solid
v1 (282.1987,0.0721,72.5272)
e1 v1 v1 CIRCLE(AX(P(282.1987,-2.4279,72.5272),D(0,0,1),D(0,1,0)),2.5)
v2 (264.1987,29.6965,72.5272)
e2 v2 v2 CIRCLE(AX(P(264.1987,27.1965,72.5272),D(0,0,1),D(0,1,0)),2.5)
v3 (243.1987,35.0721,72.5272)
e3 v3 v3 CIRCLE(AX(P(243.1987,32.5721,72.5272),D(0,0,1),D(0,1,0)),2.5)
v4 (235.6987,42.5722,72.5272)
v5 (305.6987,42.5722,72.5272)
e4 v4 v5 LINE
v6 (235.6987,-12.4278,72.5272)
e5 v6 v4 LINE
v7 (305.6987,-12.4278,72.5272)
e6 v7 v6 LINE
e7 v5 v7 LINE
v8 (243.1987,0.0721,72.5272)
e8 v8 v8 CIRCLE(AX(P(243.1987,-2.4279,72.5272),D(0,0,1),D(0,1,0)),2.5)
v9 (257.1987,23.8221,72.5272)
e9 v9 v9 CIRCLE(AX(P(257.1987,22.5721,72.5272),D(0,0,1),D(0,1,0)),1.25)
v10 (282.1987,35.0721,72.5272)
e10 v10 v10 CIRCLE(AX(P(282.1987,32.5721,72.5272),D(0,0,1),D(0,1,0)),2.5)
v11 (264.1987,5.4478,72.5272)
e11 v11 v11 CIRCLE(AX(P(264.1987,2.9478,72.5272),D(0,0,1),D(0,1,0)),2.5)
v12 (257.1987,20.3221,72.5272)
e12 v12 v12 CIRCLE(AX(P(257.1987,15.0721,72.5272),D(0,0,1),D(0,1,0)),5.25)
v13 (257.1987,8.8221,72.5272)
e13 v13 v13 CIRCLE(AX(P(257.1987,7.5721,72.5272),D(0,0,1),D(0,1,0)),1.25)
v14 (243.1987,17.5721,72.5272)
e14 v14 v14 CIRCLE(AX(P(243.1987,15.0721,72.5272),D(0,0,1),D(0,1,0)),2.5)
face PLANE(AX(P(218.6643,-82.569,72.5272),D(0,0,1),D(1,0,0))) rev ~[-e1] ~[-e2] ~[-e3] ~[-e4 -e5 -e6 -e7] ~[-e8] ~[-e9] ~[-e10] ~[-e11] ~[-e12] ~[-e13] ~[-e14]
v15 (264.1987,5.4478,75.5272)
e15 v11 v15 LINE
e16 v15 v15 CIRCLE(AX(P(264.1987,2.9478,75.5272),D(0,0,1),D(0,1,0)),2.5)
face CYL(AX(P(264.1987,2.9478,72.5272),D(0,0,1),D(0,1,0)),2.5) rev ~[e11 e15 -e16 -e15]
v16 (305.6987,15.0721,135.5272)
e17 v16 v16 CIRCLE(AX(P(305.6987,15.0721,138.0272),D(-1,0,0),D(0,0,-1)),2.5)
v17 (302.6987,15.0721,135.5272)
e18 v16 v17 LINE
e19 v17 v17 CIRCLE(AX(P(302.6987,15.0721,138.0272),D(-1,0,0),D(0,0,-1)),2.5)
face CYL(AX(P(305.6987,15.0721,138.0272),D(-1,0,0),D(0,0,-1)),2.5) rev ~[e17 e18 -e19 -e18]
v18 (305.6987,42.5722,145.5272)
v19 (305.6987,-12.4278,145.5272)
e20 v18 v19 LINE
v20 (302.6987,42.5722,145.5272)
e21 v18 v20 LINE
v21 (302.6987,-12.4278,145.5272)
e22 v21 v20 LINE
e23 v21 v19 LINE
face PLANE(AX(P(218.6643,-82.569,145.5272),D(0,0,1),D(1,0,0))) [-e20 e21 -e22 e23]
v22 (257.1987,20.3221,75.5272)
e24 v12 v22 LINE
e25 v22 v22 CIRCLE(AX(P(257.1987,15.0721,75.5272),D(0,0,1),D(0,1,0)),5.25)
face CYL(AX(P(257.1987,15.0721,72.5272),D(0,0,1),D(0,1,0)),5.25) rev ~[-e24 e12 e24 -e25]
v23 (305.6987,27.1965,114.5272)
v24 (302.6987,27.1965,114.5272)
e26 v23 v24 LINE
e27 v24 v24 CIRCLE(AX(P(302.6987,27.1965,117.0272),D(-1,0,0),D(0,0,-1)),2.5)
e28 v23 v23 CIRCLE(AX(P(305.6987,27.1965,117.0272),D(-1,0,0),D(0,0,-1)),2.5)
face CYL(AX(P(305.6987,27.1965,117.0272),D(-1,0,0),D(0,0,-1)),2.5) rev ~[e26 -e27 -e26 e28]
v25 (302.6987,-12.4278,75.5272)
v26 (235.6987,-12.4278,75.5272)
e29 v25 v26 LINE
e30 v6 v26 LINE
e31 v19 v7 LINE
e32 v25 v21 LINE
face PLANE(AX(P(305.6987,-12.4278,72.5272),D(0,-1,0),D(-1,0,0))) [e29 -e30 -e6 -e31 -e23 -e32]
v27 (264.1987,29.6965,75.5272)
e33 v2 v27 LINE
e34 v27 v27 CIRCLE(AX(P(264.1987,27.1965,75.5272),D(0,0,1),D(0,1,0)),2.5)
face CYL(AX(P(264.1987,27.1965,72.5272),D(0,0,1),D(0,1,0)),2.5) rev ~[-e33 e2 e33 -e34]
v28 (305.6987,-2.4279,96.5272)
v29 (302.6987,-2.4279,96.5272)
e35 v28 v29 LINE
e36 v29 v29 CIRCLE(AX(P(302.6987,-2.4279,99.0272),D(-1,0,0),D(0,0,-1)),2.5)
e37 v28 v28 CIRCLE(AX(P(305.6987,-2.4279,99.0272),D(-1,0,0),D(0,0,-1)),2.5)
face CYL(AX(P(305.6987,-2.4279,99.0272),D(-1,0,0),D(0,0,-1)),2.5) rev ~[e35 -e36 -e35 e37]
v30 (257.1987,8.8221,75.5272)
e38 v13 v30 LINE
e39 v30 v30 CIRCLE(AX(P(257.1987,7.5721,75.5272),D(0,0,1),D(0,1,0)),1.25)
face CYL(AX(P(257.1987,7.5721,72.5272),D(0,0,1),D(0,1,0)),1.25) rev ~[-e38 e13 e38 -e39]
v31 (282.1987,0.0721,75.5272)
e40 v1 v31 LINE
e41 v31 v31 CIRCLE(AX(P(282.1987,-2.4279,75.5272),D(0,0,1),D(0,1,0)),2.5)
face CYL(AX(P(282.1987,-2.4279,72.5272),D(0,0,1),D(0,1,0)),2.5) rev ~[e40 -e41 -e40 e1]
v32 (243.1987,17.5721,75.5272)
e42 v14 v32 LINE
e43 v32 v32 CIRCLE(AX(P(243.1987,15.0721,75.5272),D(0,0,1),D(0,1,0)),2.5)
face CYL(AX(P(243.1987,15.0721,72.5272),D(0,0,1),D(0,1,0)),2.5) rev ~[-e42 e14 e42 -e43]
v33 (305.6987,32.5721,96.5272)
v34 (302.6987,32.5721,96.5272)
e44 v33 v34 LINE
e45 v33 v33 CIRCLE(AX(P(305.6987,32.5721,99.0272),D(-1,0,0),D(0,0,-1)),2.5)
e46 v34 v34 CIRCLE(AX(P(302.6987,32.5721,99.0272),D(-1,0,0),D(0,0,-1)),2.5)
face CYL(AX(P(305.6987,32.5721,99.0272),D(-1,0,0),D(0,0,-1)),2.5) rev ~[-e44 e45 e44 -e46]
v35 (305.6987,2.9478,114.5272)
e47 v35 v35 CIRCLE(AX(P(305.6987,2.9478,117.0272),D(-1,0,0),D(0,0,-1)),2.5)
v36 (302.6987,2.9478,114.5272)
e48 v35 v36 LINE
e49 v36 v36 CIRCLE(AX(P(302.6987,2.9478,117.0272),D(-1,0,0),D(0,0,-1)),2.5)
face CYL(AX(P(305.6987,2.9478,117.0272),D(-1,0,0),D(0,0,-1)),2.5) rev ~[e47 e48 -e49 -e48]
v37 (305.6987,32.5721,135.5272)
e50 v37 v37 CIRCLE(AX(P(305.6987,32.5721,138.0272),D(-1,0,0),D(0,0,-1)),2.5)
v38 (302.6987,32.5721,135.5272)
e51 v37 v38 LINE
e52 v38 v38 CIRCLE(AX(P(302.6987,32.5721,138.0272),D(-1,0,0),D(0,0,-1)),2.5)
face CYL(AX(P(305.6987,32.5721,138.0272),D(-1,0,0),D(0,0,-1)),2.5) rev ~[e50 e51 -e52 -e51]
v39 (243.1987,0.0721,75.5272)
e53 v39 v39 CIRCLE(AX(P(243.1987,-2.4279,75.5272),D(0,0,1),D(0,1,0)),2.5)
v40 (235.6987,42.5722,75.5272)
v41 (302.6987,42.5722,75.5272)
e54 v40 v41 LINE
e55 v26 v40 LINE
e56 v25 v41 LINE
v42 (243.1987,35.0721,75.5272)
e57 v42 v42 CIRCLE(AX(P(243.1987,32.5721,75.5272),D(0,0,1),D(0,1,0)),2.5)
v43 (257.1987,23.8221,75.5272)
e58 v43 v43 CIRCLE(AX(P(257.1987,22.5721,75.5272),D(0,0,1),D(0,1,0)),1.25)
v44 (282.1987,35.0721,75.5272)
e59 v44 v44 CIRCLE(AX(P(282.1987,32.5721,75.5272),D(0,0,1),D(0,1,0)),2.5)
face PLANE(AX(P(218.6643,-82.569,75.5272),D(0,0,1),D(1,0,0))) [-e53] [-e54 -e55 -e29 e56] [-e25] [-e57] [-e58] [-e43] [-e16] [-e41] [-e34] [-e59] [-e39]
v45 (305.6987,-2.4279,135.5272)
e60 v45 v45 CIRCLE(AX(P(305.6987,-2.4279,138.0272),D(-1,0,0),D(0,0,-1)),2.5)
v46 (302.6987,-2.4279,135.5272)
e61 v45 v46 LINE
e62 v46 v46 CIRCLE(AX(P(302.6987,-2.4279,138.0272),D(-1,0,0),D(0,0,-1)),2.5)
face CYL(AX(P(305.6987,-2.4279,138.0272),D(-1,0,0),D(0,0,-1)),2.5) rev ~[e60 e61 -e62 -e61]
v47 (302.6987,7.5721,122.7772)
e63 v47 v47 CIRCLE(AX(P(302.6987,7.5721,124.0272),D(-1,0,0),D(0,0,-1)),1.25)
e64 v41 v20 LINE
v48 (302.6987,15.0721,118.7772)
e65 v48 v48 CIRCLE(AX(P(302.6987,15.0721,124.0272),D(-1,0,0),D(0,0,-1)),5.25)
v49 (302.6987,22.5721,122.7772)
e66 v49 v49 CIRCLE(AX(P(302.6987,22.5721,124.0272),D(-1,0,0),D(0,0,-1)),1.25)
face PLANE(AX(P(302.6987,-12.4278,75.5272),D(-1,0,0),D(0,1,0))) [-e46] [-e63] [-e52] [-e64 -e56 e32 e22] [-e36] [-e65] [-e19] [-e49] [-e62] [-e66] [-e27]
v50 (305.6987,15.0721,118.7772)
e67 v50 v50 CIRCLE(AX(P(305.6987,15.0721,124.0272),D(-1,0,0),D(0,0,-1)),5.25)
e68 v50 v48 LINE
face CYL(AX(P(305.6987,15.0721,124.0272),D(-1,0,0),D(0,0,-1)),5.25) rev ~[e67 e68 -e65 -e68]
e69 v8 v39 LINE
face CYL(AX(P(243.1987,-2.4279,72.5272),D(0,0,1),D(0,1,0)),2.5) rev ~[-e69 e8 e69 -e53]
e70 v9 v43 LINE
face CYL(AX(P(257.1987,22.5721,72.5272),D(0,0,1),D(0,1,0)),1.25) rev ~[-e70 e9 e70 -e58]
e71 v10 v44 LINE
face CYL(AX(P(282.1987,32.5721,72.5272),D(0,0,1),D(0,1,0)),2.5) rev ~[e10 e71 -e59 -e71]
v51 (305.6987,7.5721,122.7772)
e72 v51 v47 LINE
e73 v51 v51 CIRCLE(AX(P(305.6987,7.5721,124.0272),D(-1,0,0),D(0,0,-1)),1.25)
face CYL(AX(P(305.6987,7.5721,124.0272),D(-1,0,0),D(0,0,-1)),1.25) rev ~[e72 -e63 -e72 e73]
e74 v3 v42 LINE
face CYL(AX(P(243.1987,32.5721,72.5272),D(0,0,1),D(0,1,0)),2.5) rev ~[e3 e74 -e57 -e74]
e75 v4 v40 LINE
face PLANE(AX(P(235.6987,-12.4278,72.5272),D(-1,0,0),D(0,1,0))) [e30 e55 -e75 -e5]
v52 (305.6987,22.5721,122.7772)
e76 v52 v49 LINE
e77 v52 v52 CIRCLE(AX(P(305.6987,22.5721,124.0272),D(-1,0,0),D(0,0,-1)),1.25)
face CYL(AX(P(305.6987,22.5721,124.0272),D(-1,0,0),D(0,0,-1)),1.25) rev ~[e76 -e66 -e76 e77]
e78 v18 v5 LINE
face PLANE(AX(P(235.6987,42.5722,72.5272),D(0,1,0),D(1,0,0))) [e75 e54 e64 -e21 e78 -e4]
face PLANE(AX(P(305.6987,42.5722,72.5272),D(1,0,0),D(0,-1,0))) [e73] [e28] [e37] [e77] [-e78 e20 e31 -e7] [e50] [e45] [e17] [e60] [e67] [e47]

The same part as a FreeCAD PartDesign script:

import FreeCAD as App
import Part
import Sketcher
from FreeCAD import Vector


def add_polygon(sketch, points):
    """Adds a closed chain of lines whose ends are joined by coincident constraints."""
    first, n = sketch.GeometryCount, len(points)
    for a, b in zip(points, points[1:] + points[:1]):
        sketch.addGeometry(Part.LineSegment(App.Vector(*a, 0), App.Vector(*b, 0)), False)
    for i in range(n):
        sketch.addConstraint(Sketcher.Constraint("Coincident", first + i, 2, first + (i + 1) % n, 1))

doc = App.newDocument("Part")
body = doc.addObject("PartDesign::Body", "Body")

sketch1 = doc.addObject("Sketcher::SketchObject", "Sketch")
body.addObject(sketch1)
sketch1.AttachmentSupport = (doc.XY_Plane, [""])
sketch1.MapMode = "FlatFace"
sketch1.AttachmentOffset = App.Placement(Vector(0, 0, 72.5272), App.Rotation())
add_polygon(sketch1, [(306, 43), (236, 43), (236, -12), (306, -12)])
sketch1.addConstraint([
    Sketcher.Constraint("Horizontal", 0),
    Sketcher.Constraint("Vertical", 1),
    Sketcher.Constraint("Horizontal", 2),
    Sketcher.Constraint("Vertical", 3),
    Sketcher.Constraint("DistanceX", 0, 2, 0, 1, 70.0),
    Sketcher.Constraint("DistanceY", 1, 2, 1, 1, 55.0),
    Sketcher.Constraint("DistanceX", -1, 1, 0, 2, 235.6987),
    Sketcher.Constraint("DistanceY", -1, 1, 0, 2, 42.5722),
])
pad1 = doc.addObject("PartDesign::Pad", "Pad")
body.addObject(pad1)
pad1.Profile = sketch1
pad1.Length = 3

sketch2 = doc.addObject("Sketcher::SketchObject", "Sketch001")
body.addObject(sketch2)
sketch2.AttachmentSupport = (doc.XY_Plane, [""])
sketch2.MapMode = "FlatFace"
sketch2.AttachmentOffset = App.Placement(Vector(0, 0, 75.5272), App.Rotation())
add_polygon(sketch2, [(302.7, 42.6), (302.7, -12.4), (305.7, -12.4), (305.7, 42.6)])
sketch2.addConstraint([
    Sketcher.Constraint("Vertical", 0),
    Sketcher.Constraint("Horizontal", 1),
    Sketcher.Constraint("Vertical", 2),
    Sketcher.Constraint("Horizontal", 3),
    Sketcher.Constraint("DistanceX", 1, 1, 1, 2, 3.0),
    Sketcher.Constraint("DistanceY", 0, 2, 0, 1, 55.0),
    Sketcher.Constraint("DistanceX", -1, 1, 0, 2, 302.6987),
    Sketcher.Constraint("DistanceY", 0, 2, -1, 1, 12.4278),
])
pad2 = doc.addObject("PartDesign::Pad", "Pad001")
body.addObject(pad2)
pad2.Profile = sketch2
pad2.Length = 70

sketch3 = doc.addObject("Sketcher::SketchObject", "Sketch002")
body.addObject(sketch3)
sketch3.AttachmentSupport = (doc.YZ_Plane, [""])
sketch3.MapMode = "FlatFace"
sketch3.AttachmentOffset = App.Placement(Vector(0, 0, 305.6987), App.Rotation())
sketch3.addGeometry(Part.Circle(Vector(15, 124, 0), Vector(0, 0, 1), 5), False)
sketch3.addConstraint([
    Sketcher.Constraint("Diameter", 0, 10.5),
    Sketcher.Constraint("DistanceX", -1, 1, 0, 3, 15.072),
    Sketcher.Constraint("DistanceY", -1, 1, 0, 3, 124.0272),
])
doc.recompute()
hole = doc.addObject("PartDesign::Hole", "Hole")
body.addObject(hole)
hole.Profile = sketch3
hole.ThreadType = "None"
hole.Diameter = 10.5
hole.DepthType = "ThroughAll"

sketch4 = doc.addObject("Sketcher::SketchObject", "Sketch003")
body.addObject(sketch4)
sketch4.AttachmentSupport = (doc.YZ_Plane, [""])
sketch4.MapMode = "FlatFace"
sketch4.AttachmentOffset = App.Placement(Vector(0, 0, 305.6987), App.Rotation())
sketch4.addGeometry([
    Part.Circle(Vector(7.6, 124, 0), Vector(0, 0, 1), 1.2),
    Part.Circle(Vector(22.6, 124, 0), Vector(0, 0, 1), 1.2),
], False)
sketch4.addConstraint([
    Sketcher.Constraint("Equal", 0, 1),
    Sketcher.Constraint("Horizontal", 0, 3, 1, 3),
    Sketcher.Constraint("Diameter", 0, 2.5),
    Sketcher.Constraint("DistanceX", 0, 3, 1, 3, 15.0),
    Sketcher.Constraint("DistanceX", -1, 1, 0, 3, 7.572),
    Sketcher.Constraint("DistanceY", -1, 1, 0, 3, 124.0272),
])
doc.recompute()
hole2 = doc.addObject("PartDesign::Hole", "Hole001")
body.addObject(hole2)
hole2.Profile = sketch4
hole2.ThreadType = "None"
hole2.Diameter = 2.5
hole2.DepthType = "ThroughAll"

sketch5 = doc.addObject("Sketcher::SketchObject", "Sketch004")
body.addObject(sketch5)
sketch5.AttachmentSupport = (doc.YZ_Plane, [""])
sketch5.MapMode = "FlatFace"
sketch5.AttachmentOffset = App.Placement(Vector(0, 0, 305.6987), App.Rotation())
sketch5.addGeometry([
    Part.Circle(Vector(-2.4, 138, 0), Vector(0, 0, 1), 2.5),
    Part.Circle(Vector(-2.4, 99, 0), Vector(0, 0, 1), 2.5),
    Part.Circle(Vector(32.6, 99, 0), Vector(0, 0, 1), 2.5),
    Part.Circle(Vector(32.6, 138, 0), Vector(0, 0, 1), 2.5),
    Part.Circle(Vector(15.1, 138, 0), Vector(0, 0, 1), 2.5),
    Part.Circle(Vector(2.9, 117, 0), Vector(0, 0, 1), 2.5),
    Part.Circle(Vector(27.2, 117, 0), Vector(0, 0, 1), 2.5),
], False)
sketch5.addConstraint([
    Sketcher.Constraint("Equal", 0, 1),
    Sketcher.Constraint("Equal", 1, 2),
    Sketcher.Constraint("Equal", 2, 3),
    Sketcher.Constraint("Equal", 3, 4),
    Sketcher.Constraint("Equal", 4, 5),
    Sketcher.Constraint("Equal", 5, 6),
    Sketcher.Constraint("Horizontal", 1, 3, 2, 3),
    Sketcher.Constraint("Horizontal", 0, 3, 3, 3),
    Sketcher.Constraint("Horizontal", 3, 3, 4, 3),
    Sketcher.Constraint("Horizontal", 5, 3, 6, 3),
    Sketcher.Constraint("Vertical", 0, 3, 1, 3),
    Sketcher.Constraint("Vertical", 2, 3, 3, 3),
    Sketcher.Constraint("Diameter", 0, 5.0),
    Sketcher.Constraint("DistanceY", 1, 3, 0, 3, 39.0),
    Sketcher.Constraint("DistanceX", 1, 3, 2, 3, 35.0),
    Sketcher.Constraint("DistanceY", 1, 3, 5, 3, 18.0),
    Sketcher.Constraint("DistanceX", 0, 3, 4, 3, 17.5),
    Sketcher.Constraint("DistanceX", 0, 3, -1, 1, 2.428),
    Sketcher.Constraint("DistanceY", -1, 1, 0, 3, 138.0272),
    Sketcher.Constraint("DistanceX", -1, 1, 5, 3, 2.9478),
    Sketcher.Constraint("DistanceX", -1, 1, 6, 3, 27.1965),
])
doc.recompute()
hole3 = doc.addObject("PartDesign::Hole", "Hole002")
body.addObject(hole3)
hole3.Profile = sketch5
hole3.ThreadType = "None"
hole3.Diameter = 5
hole3.DepthType = "ThroughAll"

sketch6 = doc.addObject("Sketcher::SketchObject", "Sketch005")
body.addObject(sketch6)
sketch6.AttachmentSupport = (doc.XY_Plane, [""])
sketch6.MapMode = "FlatFace"
sketch6.AttachmentOffset = App.Placement(Vector(0, 0, 72.5272), App.Rotation())
sketch6.addGeometry(Part.Circle(Vector(257, 15, 0), Vector(0, 0, 1), 5), False)
sketch6.addConstraint([
    Sketcher.Constraint("Diameter", 0, 10.5),
    Sketcher.Constraint("DistanceY", -1, 1, 0, 3, 15.072),
    Sketcher.Constraint("DistanceX", -1, 1, 0, 3, 257.1987),
])
doc.recompute()
hole4 = doc.addObject("PartDesign::Hole", "Hole003")
body.addObject(hole4)
hole4.Profile = sketch6
hole4.ThreadType = "None"
hole4.Diameter = 10.5
hole4.DepthType = "ThroughAll"
hole4.Reversed = True

sketch7 = doc.addObject("Sketcher::SketchObject", "Sketch006")
body.addObject(sketch7)
sketch7.AttachmentSupport = (doc.XY_Plane, [""])
sketch7.MapMode = "FlatFace"
sketch7.AttachmentOffset = App.Placement(Vector(0, 0, 72.5272), App.Rotation())
sketch7.addGeometry([
    Part.Circle(Vector(257.2, 7.6, 0), Vector(0, 0, 1), 1.2),
    Part.Circle(Vector(257.2, 22.6, 0), Vector(0, 0, 1), 1.2),
], False)
sketch7.addConstraint([
    Sketcher.Constraint("Equal", 0, 1),
    Sketcher.Constraint("Vertical", 0, 3, 1, 3),
    Sketcher.Constraint("Diameter", 0, 2.5),
    Sketcher.Constraint("DistanceY", 0, 3, 1, 3, 15.0),
    Sketcher.Constraint("DistanceY", -1, 1, 0, 3, 7.572),
    Sketcher.Constraint("DistanceX", -1, 1, 0, 3, 257.1987),
])
doc.recompute()
hole5 = doc.addObject("PartDesign::Hole", "Hole004")
body.addObject(hole5)
hole5.Profile = sketch7
hole5.ThreadType = "None"
hole5.Diameter = 2.5
hole5.DepthType = "ThroughAll"
hole5.Reversed = True

sketch8 = doc.addObject("Sketcher::SketchObject", "Sketch007")
body.addObject(sketch8)
sketch8.AttachmentSupport = (doc.XY_Plane, [""])
sketch8.MapMode = "FlatFace"
sketch8.AttachmentOffset = App.Placement(Vector(0, 0, 72.5272), App.Rotation())
sketch8.addGeometry([
    Part.Circle(Vector(243.2, 15.1, 0), Vector(0, 0, 1), 2.5),
    Part.Circle(Vector(243.2, 32.6, 0), Vector(0, 0, 1), 2.5),
    Part.Circle(Vector(282.2, 32.6, 0), Vector(0, 0, 1), 2.5),
    Part.Circle(Vector(282.2, -2.4, 0), Vector(0, 0, 1), 2.5),
    Part.Circle(Vector(243.2, -2.4, 0), Vector(0, 0, 1), 2.5),
    Part.Circle(Vector(264.2, 27.2, 0), Vector(0, 0, 1), 2.5),
    Part.Circle(Vector(264.2, 2.9, 0), Vector(0, 0, 1), 2.5),
], False)
sketch8.addConstraint([
    Sketcher.Constraint("Equal", 0, 1),
    Sketcher.Constraint("Equal", 1, 2),
    Sketcher.Constraint("Equal", 2, 3),
    Sketcher.Constraint("Equal", 3, 4),
    Sketcher.Constraint("Equal", 4, 5),
    Sketcher.Constraint("Equal", 5, 6),
    Sketcher.Constraint("Horizontal", 1, 3, 2, 3),
    Sketcher.Constraint("Horizontal", 3, 3, 4, 3),
    Sketcher.Constraint("Vertical", 0, 3, 1, 3),
    Sketcher.Constraint("Vertical", 2, 3, 3, 3),
    Sketcher.Constraint("Vertical", 1, 3, 4, 3),
    Sketcher.Constraint("Vertical", 5, 3, 6, 3),
    Sketcher.Constraint("Diameter", 0, 5.0),
    Sketcher.Constraint("DistanceX", 1, 3, 2, 3, 39.0),
    Sketcher.Constraint("DistanceY", 3, 3, 2, 3, 35.0),
    Sketcher.Constraint("DistanceX", 5, 3, 2, 3, 18.0),
    Sketcher.Constraint("DistanceY", 0, 3, 1, 3, 17.5),
    Sketcher.Constraint("DistanceY", -1, 1, 0, 3, 15.072),
    Sketcher.Constraint("DistanceX", -1, 1, 0, 3, 243.1987),
    Sketcher.Constraint("DistanceY", -1, 1, 5, 3, 27.1965),
    Sketcher.Constraint("DistanceY", -1, 1, 6, 3, 2.9478),
])
doc.recompute()
hole6 = doc.addObject("PartDesign::Hole", "Hole005")
body.addObject(hole6)
hole6.Profile = sketch8
hole6.ThreadType = "None"
hole6.Diameter = 5
hole6.DepthType = "ThroughAll"
hole6.Reversed = True

doc.recompute()
